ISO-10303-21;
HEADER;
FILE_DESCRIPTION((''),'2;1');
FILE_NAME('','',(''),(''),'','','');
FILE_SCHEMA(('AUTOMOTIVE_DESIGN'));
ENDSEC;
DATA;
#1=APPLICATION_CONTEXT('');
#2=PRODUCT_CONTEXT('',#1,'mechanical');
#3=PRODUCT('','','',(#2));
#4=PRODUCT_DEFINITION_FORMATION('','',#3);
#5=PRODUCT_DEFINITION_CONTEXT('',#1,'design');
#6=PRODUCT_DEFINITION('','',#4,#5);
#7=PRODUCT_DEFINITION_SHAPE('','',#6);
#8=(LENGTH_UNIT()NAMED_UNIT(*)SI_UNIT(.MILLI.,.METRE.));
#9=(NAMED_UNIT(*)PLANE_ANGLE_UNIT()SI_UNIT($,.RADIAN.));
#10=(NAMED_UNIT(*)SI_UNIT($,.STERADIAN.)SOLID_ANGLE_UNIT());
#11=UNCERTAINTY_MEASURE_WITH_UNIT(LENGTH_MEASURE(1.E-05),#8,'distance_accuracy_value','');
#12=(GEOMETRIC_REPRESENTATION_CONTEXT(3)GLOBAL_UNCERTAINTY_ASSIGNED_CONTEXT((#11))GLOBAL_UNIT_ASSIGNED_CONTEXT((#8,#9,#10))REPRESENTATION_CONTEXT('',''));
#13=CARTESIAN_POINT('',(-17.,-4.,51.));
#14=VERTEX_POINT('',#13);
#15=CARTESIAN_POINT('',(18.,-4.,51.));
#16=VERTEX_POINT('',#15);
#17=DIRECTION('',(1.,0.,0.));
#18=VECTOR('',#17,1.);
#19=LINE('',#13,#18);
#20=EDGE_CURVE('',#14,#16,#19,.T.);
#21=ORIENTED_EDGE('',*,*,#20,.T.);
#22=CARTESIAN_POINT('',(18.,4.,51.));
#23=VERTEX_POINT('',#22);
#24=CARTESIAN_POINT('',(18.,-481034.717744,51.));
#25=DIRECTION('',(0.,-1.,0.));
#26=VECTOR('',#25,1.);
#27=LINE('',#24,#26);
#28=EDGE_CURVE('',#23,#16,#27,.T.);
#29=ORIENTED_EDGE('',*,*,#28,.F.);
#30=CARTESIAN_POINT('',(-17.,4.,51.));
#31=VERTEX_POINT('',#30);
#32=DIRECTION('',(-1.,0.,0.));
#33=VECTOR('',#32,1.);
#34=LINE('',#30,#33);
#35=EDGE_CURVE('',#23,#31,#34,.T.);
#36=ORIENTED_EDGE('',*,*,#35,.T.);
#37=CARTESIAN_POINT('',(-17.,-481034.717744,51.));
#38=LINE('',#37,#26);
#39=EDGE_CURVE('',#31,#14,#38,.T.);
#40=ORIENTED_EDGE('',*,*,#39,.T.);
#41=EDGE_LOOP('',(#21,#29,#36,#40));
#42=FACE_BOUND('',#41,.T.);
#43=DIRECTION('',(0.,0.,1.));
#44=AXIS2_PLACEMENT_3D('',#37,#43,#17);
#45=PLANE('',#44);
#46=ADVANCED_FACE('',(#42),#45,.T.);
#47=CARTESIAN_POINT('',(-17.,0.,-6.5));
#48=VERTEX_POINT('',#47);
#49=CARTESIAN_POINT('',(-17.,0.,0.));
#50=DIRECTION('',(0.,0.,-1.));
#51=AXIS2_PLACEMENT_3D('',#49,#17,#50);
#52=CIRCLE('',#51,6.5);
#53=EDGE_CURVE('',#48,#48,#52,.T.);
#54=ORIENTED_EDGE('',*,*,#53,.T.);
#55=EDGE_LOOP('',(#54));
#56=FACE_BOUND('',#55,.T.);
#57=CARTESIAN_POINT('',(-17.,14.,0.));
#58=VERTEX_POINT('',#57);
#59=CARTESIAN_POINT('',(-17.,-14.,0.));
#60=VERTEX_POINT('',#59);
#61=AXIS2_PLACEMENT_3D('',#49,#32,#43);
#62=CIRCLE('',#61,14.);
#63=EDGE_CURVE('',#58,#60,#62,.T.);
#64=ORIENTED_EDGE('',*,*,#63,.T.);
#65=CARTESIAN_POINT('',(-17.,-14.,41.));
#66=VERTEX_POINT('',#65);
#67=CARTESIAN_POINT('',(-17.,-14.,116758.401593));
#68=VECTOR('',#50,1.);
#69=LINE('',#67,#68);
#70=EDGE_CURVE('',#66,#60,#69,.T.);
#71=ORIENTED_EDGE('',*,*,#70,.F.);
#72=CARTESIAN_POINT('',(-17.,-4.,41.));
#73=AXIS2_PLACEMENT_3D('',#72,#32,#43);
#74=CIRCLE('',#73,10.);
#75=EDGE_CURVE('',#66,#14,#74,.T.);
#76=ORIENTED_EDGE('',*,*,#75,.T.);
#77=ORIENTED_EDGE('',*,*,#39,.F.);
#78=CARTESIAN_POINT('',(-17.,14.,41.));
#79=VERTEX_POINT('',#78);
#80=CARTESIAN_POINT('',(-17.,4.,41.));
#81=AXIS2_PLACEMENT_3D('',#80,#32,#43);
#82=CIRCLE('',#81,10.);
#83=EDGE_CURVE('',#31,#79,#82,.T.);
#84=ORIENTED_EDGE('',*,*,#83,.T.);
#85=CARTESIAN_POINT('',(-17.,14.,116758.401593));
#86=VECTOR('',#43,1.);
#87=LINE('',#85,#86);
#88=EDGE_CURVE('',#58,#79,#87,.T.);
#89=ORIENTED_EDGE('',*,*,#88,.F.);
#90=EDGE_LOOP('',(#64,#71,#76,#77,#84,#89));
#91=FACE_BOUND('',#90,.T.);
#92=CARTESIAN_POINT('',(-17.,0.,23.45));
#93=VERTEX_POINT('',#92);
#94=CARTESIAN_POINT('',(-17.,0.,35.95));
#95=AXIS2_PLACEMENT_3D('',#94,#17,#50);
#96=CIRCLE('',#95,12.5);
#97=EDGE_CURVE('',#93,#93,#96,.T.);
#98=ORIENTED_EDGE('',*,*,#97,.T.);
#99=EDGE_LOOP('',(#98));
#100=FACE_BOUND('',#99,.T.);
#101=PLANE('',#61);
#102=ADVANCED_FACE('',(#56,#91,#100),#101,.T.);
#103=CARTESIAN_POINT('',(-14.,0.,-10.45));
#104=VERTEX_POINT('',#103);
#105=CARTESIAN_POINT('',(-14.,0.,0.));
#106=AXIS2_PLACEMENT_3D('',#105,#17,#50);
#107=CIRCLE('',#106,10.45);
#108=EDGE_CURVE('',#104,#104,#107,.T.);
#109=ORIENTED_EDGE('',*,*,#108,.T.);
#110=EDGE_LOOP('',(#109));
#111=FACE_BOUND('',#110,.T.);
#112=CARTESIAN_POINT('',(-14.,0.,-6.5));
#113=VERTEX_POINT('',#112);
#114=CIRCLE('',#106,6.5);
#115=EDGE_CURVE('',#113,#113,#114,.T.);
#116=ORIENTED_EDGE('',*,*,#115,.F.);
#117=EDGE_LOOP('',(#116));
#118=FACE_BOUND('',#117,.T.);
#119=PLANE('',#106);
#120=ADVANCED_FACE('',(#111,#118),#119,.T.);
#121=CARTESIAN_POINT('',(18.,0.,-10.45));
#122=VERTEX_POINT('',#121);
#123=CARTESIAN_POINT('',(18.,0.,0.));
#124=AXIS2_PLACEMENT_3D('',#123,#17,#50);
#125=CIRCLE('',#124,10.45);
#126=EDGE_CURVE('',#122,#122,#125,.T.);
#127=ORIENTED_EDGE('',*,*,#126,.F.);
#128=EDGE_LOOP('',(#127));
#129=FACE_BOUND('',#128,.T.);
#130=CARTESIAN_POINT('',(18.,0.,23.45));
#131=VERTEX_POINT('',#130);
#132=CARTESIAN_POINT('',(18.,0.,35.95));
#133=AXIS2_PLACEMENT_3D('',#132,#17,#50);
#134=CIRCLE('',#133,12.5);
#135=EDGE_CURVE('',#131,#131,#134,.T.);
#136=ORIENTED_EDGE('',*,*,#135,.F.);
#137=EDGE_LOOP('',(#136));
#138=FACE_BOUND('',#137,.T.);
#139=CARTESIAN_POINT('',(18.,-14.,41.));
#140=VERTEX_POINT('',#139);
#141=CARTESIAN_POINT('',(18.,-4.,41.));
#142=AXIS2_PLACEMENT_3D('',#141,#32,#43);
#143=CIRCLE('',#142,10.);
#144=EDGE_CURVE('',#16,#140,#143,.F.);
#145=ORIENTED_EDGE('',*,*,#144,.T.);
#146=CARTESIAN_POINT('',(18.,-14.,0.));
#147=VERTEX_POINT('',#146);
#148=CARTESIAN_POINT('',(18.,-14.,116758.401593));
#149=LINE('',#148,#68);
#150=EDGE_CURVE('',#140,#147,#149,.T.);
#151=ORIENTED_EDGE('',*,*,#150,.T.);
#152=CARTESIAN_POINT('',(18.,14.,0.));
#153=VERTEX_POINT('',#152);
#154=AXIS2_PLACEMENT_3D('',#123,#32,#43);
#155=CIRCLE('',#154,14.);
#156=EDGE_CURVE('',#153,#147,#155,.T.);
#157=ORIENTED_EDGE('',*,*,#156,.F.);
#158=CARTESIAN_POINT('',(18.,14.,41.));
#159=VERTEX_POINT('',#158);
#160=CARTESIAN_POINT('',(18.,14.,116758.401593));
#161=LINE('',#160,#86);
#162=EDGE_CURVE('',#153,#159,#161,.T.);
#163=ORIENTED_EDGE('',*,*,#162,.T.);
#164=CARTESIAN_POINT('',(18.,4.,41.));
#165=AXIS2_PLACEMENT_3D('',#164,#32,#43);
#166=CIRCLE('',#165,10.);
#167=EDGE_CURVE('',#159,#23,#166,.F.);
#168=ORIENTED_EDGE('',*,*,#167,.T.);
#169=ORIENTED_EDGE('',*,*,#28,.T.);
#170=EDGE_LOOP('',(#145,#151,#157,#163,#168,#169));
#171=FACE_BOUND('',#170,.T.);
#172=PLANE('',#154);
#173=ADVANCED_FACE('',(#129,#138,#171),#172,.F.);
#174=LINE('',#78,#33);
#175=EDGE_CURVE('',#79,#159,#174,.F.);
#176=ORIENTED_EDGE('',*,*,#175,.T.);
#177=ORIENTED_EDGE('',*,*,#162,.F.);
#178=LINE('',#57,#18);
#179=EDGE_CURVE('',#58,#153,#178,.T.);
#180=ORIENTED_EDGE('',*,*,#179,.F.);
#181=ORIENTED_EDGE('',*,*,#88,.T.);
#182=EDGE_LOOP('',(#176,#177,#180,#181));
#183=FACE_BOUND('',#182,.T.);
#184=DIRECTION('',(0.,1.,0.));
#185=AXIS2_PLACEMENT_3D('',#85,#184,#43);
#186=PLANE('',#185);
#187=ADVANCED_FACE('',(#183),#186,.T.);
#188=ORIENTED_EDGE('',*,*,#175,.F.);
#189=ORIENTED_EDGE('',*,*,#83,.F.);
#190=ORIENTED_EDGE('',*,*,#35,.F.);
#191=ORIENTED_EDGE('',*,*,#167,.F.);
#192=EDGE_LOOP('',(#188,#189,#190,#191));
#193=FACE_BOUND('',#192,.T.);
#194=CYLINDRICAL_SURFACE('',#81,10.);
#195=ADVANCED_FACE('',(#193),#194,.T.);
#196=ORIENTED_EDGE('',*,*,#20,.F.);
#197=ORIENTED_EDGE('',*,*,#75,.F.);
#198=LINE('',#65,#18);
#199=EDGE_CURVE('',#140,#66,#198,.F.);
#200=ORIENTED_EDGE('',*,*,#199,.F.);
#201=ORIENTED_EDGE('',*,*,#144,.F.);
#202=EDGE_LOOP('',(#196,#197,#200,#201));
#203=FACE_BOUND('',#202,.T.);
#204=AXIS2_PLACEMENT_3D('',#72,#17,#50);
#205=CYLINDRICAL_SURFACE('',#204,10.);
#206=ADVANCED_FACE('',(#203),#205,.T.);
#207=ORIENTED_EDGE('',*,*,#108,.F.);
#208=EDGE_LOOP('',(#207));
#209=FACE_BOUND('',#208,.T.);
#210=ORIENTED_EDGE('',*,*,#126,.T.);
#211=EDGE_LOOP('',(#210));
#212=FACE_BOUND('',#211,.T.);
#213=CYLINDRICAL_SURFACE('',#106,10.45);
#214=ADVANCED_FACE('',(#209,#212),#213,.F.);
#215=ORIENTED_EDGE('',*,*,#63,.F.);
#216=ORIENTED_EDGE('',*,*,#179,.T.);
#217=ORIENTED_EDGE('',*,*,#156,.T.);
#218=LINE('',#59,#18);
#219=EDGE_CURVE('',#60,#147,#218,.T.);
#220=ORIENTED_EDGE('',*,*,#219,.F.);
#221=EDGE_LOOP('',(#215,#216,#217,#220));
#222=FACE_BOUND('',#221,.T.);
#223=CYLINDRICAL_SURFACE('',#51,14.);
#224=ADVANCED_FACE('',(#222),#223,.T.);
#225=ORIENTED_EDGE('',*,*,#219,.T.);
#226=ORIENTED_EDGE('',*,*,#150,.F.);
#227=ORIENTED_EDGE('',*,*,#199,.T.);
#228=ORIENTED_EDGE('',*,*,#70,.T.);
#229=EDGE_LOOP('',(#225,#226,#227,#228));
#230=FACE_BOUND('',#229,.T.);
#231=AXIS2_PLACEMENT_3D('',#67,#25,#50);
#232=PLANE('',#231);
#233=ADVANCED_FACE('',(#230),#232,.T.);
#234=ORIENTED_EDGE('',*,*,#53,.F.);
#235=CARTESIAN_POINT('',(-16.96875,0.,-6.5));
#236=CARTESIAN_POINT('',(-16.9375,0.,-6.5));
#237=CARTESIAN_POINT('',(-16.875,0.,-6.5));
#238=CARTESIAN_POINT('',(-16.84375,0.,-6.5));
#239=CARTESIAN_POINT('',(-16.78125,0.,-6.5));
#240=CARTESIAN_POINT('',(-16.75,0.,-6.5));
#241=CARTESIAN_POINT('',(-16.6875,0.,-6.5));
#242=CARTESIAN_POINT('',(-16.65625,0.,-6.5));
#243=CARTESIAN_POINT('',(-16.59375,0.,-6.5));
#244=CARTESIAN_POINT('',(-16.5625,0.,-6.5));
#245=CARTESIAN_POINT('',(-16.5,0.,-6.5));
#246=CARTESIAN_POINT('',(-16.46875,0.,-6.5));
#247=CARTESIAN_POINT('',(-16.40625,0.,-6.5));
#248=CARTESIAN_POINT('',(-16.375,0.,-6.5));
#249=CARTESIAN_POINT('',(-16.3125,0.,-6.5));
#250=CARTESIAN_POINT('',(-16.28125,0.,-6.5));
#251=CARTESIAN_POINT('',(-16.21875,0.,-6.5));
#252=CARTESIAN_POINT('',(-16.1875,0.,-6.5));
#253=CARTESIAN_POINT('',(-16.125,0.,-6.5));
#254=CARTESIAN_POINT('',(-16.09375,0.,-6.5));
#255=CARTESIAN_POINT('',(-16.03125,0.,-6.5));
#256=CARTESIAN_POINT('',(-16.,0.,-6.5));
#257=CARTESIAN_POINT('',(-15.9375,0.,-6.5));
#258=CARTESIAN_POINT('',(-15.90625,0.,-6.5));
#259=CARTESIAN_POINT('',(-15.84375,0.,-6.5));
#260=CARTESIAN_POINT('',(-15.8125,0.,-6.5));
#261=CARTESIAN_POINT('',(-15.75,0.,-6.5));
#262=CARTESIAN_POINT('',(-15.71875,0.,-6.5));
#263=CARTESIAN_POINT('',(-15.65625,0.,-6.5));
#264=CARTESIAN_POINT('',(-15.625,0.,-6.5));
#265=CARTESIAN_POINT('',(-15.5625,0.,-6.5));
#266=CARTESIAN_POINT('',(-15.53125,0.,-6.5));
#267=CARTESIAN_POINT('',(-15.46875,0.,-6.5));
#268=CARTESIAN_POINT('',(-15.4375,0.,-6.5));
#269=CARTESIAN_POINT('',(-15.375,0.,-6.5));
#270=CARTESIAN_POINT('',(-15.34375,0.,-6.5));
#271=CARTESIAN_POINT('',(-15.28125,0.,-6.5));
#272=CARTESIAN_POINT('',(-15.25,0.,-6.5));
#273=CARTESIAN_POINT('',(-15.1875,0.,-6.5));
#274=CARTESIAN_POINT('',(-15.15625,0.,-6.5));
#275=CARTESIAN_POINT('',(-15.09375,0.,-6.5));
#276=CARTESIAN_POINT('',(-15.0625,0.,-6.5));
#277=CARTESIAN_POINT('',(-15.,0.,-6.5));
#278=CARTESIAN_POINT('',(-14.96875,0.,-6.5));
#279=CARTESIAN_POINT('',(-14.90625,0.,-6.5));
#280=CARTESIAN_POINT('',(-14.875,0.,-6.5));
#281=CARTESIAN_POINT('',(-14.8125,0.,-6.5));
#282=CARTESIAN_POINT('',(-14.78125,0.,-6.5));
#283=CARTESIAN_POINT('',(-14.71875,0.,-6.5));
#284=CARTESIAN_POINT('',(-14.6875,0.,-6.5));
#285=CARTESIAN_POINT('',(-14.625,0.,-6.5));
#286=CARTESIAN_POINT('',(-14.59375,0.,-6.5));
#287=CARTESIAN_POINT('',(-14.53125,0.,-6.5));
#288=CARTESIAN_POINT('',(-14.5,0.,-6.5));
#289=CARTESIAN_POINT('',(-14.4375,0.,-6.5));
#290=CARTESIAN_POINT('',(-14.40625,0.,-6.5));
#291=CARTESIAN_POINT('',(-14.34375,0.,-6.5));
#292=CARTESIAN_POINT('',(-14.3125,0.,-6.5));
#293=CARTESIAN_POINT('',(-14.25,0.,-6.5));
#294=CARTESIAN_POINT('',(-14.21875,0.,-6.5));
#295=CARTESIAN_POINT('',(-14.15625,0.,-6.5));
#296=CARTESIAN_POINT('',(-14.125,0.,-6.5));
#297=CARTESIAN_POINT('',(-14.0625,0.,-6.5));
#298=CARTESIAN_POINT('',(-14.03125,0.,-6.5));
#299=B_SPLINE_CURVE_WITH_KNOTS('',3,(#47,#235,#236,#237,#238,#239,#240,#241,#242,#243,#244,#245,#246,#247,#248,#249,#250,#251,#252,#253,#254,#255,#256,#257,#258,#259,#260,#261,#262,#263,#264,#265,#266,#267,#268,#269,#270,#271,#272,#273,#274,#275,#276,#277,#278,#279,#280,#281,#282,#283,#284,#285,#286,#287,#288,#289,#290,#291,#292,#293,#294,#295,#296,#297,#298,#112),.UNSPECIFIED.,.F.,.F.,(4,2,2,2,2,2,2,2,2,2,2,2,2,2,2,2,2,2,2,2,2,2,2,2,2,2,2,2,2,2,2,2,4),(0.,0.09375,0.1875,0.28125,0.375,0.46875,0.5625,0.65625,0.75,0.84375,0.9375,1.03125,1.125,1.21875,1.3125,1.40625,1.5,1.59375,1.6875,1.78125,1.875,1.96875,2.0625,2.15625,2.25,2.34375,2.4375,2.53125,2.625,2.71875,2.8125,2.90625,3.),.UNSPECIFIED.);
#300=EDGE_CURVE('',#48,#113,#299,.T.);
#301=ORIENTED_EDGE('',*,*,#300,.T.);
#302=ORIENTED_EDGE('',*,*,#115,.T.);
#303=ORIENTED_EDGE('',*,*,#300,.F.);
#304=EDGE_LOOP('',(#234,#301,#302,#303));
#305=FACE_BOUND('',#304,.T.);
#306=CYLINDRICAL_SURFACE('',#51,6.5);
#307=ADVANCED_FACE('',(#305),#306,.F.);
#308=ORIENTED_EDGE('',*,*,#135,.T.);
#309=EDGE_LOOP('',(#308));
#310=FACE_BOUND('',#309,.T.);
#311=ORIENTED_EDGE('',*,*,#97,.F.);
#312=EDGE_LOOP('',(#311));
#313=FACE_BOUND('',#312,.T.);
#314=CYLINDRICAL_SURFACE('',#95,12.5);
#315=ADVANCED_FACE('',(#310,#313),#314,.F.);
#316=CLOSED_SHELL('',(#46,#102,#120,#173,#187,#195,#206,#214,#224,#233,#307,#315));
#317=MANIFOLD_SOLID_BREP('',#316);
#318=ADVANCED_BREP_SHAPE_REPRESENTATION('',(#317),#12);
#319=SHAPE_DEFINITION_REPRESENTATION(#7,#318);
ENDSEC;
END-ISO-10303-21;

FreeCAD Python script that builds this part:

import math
import FreeCAD as App
import Part
import Sketcher

V = App.Vector


def edges_at(feature, points):
    """Names of the edges that pass closest to the given points."""
    edges = feature.Shape.Edges
    near = lambda p: min(range(len(edges)), key=lambda i: edges[i].distToShape(Part.Vertex(*p))[0])
    return sorted({f"Edge{near(p) + 1}" for p in points})

doc = App.newDocument("Part")
body = doc.addObject("PartDesign::Body", "Body")

# Sketch on YZ plane
sketch1 = body.newObject("Sketcher::SketchObject", "Sketch")
sketch1.AttachmentSupport = (doc.getObject("YZ_Plane"), [""])
sketch1.MapMode = "FlatFace"
sketch1.AttachmentOffset = App.Placement(V(0, 0, -17), App.Rotation())
sketch1.addGeometry([
    Part.LineSegment(V(-14, 51, 0), V(-14, 0, 0)),
    Part.ArcOfCircle(Part.Circle(V(0, 0, 0), V(0, 0, 1), 14), math.radians(180), math.radians(360)),
    Part.LineSegment(V(14, 0, 0), V(14, 51, 0)),
    Part.LineSegment(V(14, 51, 0), V(-14, 51, 0)),
], False)
sketch1.addConstraint([
    Sketcher.Constraint("Tangent", 0, 2, 1, 1),
    Sketcher.Constraint("Tangent", 1, 2, 2, 1),
    Sketcher.Constraint("Coincident", 2, 2, 3, 1),
    Sketcher.Constraint("Coincident", 3, 2, 0, 1),
    Sketcher.Constraint("Vertical", 0),
    Sketcher.Constraint("Vertical", 2),
    Sketcher.Constraint("Horizontal", 3),
    Sketcher.Constraint("Coincident", 1, 3, -1, 1),
    Sketcher.Constraint("Radius", 1, 14.0),
    Sketcher.Constraint("DistanceY", 0, 2, 0, 1, 51.0),
])
pad1 = body.newObject("PartDesign::Pad", "Pad")
pad1.Profile = sketch1
pad1.Length = 35

# Sketch on YZ plane
sketch2 = body.newObject("Sketcher::SketchObject", "Sketch001")
sketch2.AttachmentSupport = (doc.getObject("YZ_Plane"), [""])
sketch2.MapMode = "FlatFace"
sketch2.AttachmentOffset = App.Placement(V(0, 0, 18), App.Rotation())
sketch2.addGeometry(Part.Circle(V(0, 0, 0), V(0, 0, 1), 10), False)
sketch2.addConstraint([
    Sketcher.Constraint("Coincident", 0, 3, -1, 1),
    Sketcher.Constraint("Diameter", 0, 20.9),
])
pocket1 = body.newObject("PartDesign::Pocket", "Pocket")
pocket1.Profile = sketch2
pocket1.Length = 32

# Sketch on YZ plane
sketch3 = body.newObject("Sketcher::SketchObject", "Sketch002")
sketch3.AttachmentSupport = (doc.getObject("YZ_Plane"), [""])
sketch3.MapMode = "FlatFace"
sketch3.AttachmentOffset = App.Placement(V(0, 0, -14), App.Rotation())
sketch3.addGeometry(Part.Circle(V(0, 0, 0), V(0, 0, 1), 6), False)
sketch3.addConstraint([
    Sketcher.Constraint("Coincident", 0, 3, -1, 1),
    Sketcher.Constraint("Diameter", 0, 13.0),
])
pocket2 = body.newObject("PartDesign::Pocket", "Pocket001")
pocket2.Profile = sketch3
pocket2.Type = "ThroughAll"

# Sketch on YZ plane
sketch4 = body.newObject("Sketcher::SketchObject", "Sketch003")
sketch4.AttachmentSupport = (doc.getObject("YZ_Plane"), [""])
sketch4.MapMode = "FlatFace"
sketch4.AttachmentOffset = App.Placement(V(0, 0, 18), App.Rotation())
sketch4.addGeometry(Part.Circle(V(0, 36, 0), V(0, 0, 1), 12), False)
sketch4.addConstraint([
    Sketcher.Constraint("PointOnObject", 0, 3, -2),
    Sketcher.Constraint("Diameter", 0, 25.0),
    Sketcher.Constraint("DistanceY", -1, 1, 0, 3, 35.95),
])
pocket3 = body.newObject("PartDesign::Pocket", "Pocket002")
pocket3.Profile = sketch4
pocket3.Type = "ThroughAll"
doc.recompute()

fillet = body.newObject("PartDesign::Fillet", "Fillet")
fillet.Base = (pocket3, edges_at(pocket3, [(0.5, 14, 51)]))
fillet.Radius = 10
doc.recompute()

fillet2 = body.newObject("PartDesign::Fillet", "Fillet001")
fillet2.Base = (fillet, edges_at(fillet, [(0.5, -14, 51)]))
fillet2.Radius = 10

doc.recompute()
